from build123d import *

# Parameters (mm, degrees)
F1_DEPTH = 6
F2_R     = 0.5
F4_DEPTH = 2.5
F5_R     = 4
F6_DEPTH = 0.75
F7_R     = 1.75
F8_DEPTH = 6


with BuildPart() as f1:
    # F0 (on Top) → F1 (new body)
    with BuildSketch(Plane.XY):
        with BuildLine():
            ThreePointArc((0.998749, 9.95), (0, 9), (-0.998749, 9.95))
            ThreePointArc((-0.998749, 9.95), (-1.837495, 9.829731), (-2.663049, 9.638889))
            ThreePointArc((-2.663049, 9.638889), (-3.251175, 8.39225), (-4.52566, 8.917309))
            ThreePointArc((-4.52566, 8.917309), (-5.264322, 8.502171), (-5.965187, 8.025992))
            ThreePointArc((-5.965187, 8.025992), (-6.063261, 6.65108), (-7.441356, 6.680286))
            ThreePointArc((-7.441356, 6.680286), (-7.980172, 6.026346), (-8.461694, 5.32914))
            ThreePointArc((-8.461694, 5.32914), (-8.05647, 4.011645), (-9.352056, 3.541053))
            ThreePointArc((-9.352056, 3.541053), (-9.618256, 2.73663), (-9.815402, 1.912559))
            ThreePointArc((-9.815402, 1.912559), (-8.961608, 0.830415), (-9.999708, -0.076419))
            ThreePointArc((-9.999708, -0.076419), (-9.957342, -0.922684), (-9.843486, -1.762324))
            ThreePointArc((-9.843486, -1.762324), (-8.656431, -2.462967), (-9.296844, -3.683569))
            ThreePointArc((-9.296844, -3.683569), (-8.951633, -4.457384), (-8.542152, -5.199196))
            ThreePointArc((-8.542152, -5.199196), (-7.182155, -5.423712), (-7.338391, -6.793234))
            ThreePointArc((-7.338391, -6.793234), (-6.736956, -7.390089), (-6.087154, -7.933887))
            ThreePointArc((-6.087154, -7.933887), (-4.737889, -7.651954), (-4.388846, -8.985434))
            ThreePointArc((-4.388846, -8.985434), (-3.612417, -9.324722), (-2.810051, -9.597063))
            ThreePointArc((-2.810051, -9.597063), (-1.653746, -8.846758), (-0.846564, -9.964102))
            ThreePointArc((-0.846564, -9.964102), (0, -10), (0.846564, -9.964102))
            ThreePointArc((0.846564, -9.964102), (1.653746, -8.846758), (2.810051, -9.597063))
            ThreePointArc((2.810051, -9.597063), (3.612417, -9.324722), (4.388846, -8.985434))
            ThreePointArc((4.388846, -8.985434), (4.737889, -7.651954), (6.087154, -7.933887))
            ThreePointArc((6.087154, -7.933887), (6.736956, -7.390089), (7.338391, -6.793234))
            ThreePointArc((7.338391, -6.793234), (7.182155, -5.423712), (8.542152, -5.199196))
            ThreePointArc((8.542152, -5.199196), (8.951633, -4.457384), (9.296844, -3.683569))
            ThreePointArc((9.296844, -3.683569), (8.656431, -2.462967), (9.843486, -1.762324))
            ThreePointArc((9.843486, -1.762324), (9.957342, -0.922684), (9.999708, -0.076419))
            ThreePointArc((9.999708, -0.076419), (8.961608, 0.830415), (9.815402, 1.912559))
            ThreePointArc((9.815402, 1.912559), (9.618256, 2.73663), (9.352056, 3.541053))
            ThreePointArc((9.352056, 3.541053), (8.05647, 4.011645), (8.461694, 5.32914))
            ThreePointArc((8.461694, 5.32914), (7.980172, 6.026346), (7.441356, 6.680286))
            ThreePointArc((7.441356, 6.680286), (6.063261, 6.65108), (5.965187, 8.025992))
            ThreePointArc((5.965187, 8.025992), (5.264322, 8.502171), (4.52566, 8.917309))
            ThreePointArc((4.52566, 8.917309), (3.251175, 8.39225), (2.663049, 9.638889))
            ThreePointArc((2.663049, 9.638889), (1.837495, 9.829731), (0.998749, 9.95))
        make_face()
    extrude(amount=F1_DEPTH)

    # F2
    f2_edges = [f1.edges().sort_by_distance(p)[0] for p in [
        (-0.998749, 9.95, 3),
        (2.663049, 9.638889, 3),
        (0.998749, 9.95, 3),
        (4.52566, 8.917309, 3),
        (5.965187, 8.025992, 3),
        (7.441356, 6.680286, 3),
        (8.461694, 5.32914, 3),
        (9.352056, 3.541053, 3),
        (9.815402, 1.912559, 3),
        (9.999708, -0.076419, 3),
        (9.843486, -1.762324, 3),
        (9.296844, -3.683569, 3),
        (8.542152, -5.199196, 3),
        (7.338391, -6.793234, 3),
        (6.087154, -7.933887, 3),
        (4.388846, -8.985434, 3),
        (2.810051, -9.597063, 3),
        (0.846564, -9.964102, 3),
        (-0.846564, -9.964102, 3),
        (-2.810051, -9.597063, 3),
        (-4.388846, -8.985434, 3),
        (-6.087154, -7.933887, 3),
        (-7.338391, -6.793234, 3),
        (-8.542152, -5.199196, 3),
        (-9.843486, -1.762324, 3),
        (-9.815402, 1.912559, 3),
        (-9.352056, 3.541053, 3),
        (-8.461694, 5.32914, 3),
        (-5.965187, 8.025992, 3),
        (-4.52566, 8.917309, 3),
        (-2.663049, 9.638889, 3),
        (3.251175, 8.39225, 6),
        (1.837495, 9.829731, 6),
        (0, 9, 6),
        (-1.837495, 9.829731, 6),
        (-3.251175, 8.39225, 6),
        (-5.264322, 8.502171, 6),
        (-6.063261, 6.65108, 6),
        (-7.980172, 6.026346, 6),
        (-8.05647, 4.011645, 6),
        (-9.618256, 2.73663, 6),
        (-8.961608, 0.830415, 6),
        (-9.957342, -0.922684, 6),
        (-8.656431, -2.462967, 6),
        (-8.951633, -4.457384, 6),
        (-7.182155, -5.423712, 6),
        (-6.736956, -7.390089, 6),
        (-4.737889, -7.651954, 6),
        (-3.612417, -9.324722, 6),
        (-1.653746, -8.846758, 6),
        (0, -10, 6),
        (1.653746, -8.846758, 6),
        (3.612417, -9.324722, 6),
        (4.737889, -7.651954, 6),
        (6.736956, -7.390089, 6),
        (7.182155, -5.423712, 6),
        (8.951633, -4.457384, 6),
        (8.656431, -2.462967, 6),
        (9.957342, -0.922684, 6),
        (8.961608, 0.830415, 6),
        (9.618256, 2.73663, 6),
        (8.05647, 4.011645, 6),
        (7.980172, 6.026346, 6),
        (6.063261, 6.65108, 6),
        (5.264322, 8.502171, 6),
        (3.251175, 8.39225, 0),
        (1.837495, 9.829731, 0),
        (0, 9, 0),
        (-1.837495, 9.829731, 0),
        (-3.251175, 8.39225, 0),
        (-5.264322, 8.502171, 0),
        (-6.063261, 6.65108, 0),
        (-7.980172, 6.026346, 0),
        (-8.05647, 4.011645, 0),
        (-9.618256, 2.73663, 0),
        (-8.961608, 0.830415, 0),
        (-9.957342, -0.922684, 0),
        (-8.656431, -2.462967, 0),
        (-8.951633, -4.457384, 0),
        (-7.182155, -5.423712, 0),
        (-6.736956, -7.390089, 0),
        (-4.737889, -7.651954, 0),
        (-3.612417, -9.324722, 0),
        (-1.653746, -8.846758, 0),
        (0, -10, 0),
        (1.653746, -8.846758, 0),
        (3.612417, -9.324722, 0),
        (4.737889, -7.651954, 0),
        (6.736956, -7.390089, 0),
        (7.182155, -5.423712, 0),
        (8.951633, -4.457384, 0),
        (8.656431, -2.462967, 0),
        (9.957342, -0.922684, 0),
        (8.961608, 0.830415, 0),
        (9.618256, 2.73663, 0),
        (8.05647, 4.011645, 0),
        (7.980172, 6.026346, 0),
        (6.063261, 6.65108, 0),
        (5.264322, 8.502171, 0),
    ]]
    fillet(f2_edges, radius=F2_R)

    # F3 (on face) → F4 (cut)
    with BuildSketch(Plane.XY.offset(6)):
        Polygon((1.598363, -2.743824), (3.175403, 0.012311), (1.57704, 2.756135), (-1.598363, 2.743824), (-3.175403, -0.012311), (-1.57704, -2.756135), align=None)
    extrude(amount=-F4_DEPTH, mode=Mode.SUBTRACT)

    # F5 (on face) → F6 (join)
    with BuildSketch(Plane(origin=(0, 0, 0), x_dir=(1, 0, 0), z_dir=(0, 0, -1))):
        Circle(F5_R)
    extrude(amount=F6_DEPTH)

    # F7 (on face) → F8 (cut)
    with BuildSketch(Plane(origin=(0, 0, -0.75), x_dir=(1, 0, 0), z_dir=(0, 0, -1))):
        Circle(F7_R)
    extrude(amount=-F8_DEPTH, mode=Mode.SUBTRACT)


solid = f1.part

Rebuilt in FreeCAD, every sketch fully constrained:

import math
import FreeCAD as App
import Part
import Sketcher
Q = App.Units.Quantity


def edges_at(feature, points):
    """Names of the edges that pass closest to the given points."""
    edges = feature.Shape.Edges
    near = lambda p: min(range(len(edges)), key=lambda i: edges[i].distToShape(Part.Vertex(*p))[0])
    return sorted({f"Edge{near(p) + 1}" for p in points})

doc = App.newDocument("Part")
body = doc.addObject("PartDesign::Body", "Body")

# Sketch on XY plane
sketch1 = doc.addObject("Sketcher::SketchObject", "Sketch")
body.addObject(sketch1)
sketch1.AttachmentSupport = (doc.XY_Plane, [""])
sketch1.MapMode = "FlatFace"
sketch1.addGeometry([
    Part.ArcOfCircle(Part.Circle(App.Vector(0, 10, 0), App.Vector(0, 0, 1), 1), math.radians(-177.134028), math.radians(-2.865972)),  # 0
    Part.ArcOfCircle(Part.Circle(App.Vector(0.000012, -0.000082, 0), App.Vector(0, 0, 1), 10.000083), math.radians(95.731987), math.radians(105.444444)),  # 1
    Part.ArcOfCircle(Part.Circle(App.Vector(-3.612416, 9.324722, 0), App.Vector(0, 0, 1), 1), math.radians(-155.957566), math.radians(18.310542)),  # 2
    Part.ArcOfCircle(Part.Circle(App.Vector(0.000021, -0.000037, 0), App.Vector(0, 0, 1), 10.000042), math.radians(116.908447), math.radians(126.620942)),  # 3
    Part.ArcOfCircle(Part.Circle(App.Vector(-6.736956, 7.390089, 0), App.Vector(0, 0, 1), 1), math.radians(-134.781084), math.radians(39.486972)),  # 4
    Part.ArcOfCircle(Part.Circle(App.Vector(0.00009, -0.000067, 0), App.Vector(0, 0, 1), 10.000112), math.radians(138.084964), math.radians(147.797394)),  # 5
    Part.ArcOfCircle(Part.Circle(App.Vector(-8.951633, 4.457383, 0), App.Vector(0, 0, 1), 1), math.radians(-113.604614), math.radians(60.663413)),  # 6
    Part.ArcOfCircle(Part.Circle(App.Vector(0.000146, -0.000039, 0), App.Vector(0, 0, 1), 10.00015), math.radians(159.26147), math.radians(168.973857)),  # 7
    Part.ArcOfCircle(Part.Circle(App.Vector(-9.957342, 0.922683, 0), App.Vector(0, 0, 1), 1), math.radians(-92.428092), math.radians(81.839854)),  # 8
    Part.ArcOfCircle(Part.Circle(App.Vector(-0.000059, -0.000006, 0), App.Vector(0, 0, 1), 9.999941), math.radians(-179.56218), math.radians(-169.849592)),  # 9
    Part.ArcOfCircle(Part.Circle(App.Vector(-9.618257, -2.73663, 0), App.Vector(0, 0, 1), 1), math.radians(-71.251619), math.radians(103.016362)),  # 10
    Part.ArcOfCircle(Part.Circle(App.Vector(-0.000137, -0.000072, 0), App.Vector(0, 0, 1), 9.999846), math.radians(-158.385773), math.radians(-148.673085)),  # 11
    Part.ArcOfCircle(Part.Circle(App.Vector(-7.980172, -6.026346, 0), App.Vector(0, 0, 1), 1), math.radians(-50.075233), math.radians(124.192852)),  # 12
    Part.ArcOfCircle(Part.Circle(App.Vector(0.00016, 0.000177, 0), App.Vector(0, 0, 1), 10.000238), math.radians(-137.209087), math.radians(-127.496783)),  # 13
    Part.ArcOfCircle(Part.Circle(App.Vector(-5.264321, -8.502171, 0), App.Vector(0, 0, 1), 1), math.radians(-28.89872), math.radians(145.369347)),  # 14
    Part.ArcOfCircle(Part.Circle(App.Vector(0.000014, 0.000027, 0), App.Vector(0, 0, 1), 10.00003), math.radians(-116.032742), math.radians(-106.320235)),  # 15
    Part.ArcOfCircle(Part.Circle(App.Vector(-1.837495, -9.829731, 0), App.Vector(0, 0, 1), 1), math.radians(-7.722248), math.radians(166.545796)),  # 16
    Part.ArcOfCircle(Part.Circle(App.Vector(0, -0.00001, 0), App.Vector(0, 0, 1), 9.99999), math.radians(-94.856272), math.radians(-85.143728)),  # 17
    Part.ArcOfCircle(Part.Circle(App.Vector(1.837495, -9.829731, 0), App.Vector(0, 0, 1), 1), math.radians(13.454204), math.radians(187.722248)),  # 18
    Part.ArcOfCircle(Part.Circle(App.Vector(-0.000014, 0.000027, 0), App.Vector(0, 0, 1), 10.00003), math.radians(-73.679765), math.radians(-63.967258)),  # 19
    Part.ArcOfCircle(Part.Circle(App.Vector(5.264321, -8.502171, 0), App.Vector(0, 0, 1), 1), math.radians(34.630653), math.radians(208.89872)),  # 20
    Part.ArcOfCircle(Part.Circle(App.Vector(-0.00016, 0.000177, 0), App.Vector(0, 0, 1), 10.000238), math.radians(-52.503217), math.radians(-42.790913)),  # 21
    Part.ArcOfCircle(Part.Circle(App.Vector(7.980172, -6.026346, 0), App.Vector(0, 0, 1), 1), math.radians(55.807148), math.radians(230.075233)),  # 22
    Part.ArcOfCircle(Part.Circle(App.Vector(0.000137, -0.000072, 0), App.Vector(0, 0, 1), 9.999846), math.radians(-31.326915), math.radians(-21.614227)),  # 23
    Part.ArcOfCircle(Part.Circle(App.Vector(9.618257, -2.73663, 0), App.Vector(0, 0, 1), 1), math.radians(76.983638), math.radians(251.251619)),  # 24
    Part.ArcOfCircle(Part.Circle(App.Vector(0.000059, -0.000006, 0), App.Vector(0, 0, 1), 9.999941), math.radians(-10.150408), math.radians(-0.43782)),  # 25
    Part.ArcOfCircle(Part.Circle(App.Vector(9.957342, 0.922683, 0), App.Vector(0, 0, 1), 1), math.radians(98.160146), math.radians(272.428092)),  # 26
    Part.ArcOfCircle(Part.Circle(App.Vector(-0.000146, -0.000039, 0), App.Vector(0, 0, 1), 10.00015), math.radians(11.026143), math.radians(20.73853)),  # 27
    Part.ArcOfCircle(Part.Circle(App.Vector(8.951633, 4.457383, 0), App.Vector(0, 0, 1), 1), math.radians(119.336587), math.radians(293.604614)),  # 28
    Part.ArcOfCircle(Part.Circle(App.Vector(-0.00009, -0.000067, 0), App.Vector(0, 0, 1), 10.000112), math.radians(32.202606), math.radians(41.915036)),  # 29
    Part.ArcOfCircle(Part.Circle(App.Vector(6.736956, 7.390089, 0), App.Vector(0, 0, 1), 1), math.radians(140.513028), math.radians(314.781084)),  # 30
    Part.ArcOfCircle(Part.Circle(App.Vector(-0.000021, -0.000037, 0), App.Vector(0, 0, 1), 10.000042), math.radians(53.379058), math.radians(63.091553)),  # 31
    Part.ArcOfCircle(Part.Circle(App.Vector(3.612416, 9.324722, 0), App.Vector(0, 0, 1), 1), math.radians(161.689458), math.radians(335.957566)),  # 32
    Part.ArcOfCircle(Part.Circle(App.Vector(-0.000012, -0.000082, 0), App.Vector(0, 0, 1), 10.000083), math.radians(74.555556), math.radians(84.268013)),  # 33
], False)
sketch1.addConstraint([
    Sketcher.Constraint("Coincident", 0, 1, 1, 1),
    Sketcher.Constraint("Coincident", 1, 2, 2, 2),
    Sketcher.Constraint("Coincident", 2, 1, 3, 1),
    Sketcher.Constraint("Coincident", 3, 2, 4, 2),
    Sketcher.Constraint("Coincident", 4, 1, 5, 1),
    Sketcher.Constraint("Coincident", 5, 2, 6, 2),
    Sketcher.Constraint("Coincident", 6, 1, 7, 1),
    Sketcher.Constraint("Coincident", 7, 2, 8, 2),
    Sketcher.Constraint("Coincident", 8, 1, 9, 1),
    Sketcher.Constraint("Coincident", 9, 2, 10, 2),
    Sketcher.Constraint("Coincident", 10, 1, 11, 1),
    Sketcher.Constraint("Coincident", 11, 2, 12, 2),
    Sketcher.Constraint("Coincident", 12, 1, 13, 1),
    Sketcher.Constraint("Coincident", 13, 2, 14, 2),
    Sketcher.Constraint("Coincident", 14, 1, 15, 1),
    Sketcher.Constraint("Coincident", 15, 2, 16, 2),
    Sketcher.Constraint("Coincident", 16, 1, 17, 1),
    Sketcher.Constraint("Coincident", 17, 2, 18, 2),
    Sketcher.Constraint("Coincident", 18, 1, 19, 1),
    Sketcher.Constraint("Coincident", 19, 2, 20, 2),
    Sketcher.Constraint("Coincident", 20, 1, 21, 1),
    Sketcher.Constraint("Coincident", 21, 2, 22, 2),
    Sketcher.Constraint("Coincident", 22, 1, 23, 1),
    Sketcher.Constraint("Coincident", 23, 2, 24, 2),
    Sketcher.Constraint("Coincident", 24, 1, 25, 1),
    Sketcher.Constraint("Coincident", 25, 2, 26, 2),
    Sketcher.Constraint("Coincident", 26, 1, 27, 1),
    Sketcher.Constraint("Coincident", 27, 2, 28, 2),
    Sketcher.Constraint("Coincident", 28, 1, 29, 1),
    Sketcher.Constraint("Coincident", 29, 2, 30, 2),
    Sketcher.Constraint("Coincident", 30, 1, 31, 1),
    Sketcher.Constraint("Coincident", 31, 2, 32, 2),
    Sketcher.Constraint("Coincident", 32, 1, 33, 1),
    Sketcher.Constraint("Coincident", 33, 2, 0, 2),
    Sketcher.Constraint("Equal", 0, 2),
    Sketcher.Constraint("Equal", 2, 4),
    Sketcher.Constraint("Equal", 4, 6),
    Sketcher.Constraint("Equal", 6, 8),
    Sketcher.Constraint("Equal", 8, 10),
    Sketcher.Constraint("Equal", 10, 12),
    Sketcher.Constraint("Equal", 12, 14),
    Sketcher.Constraint("Equal", 14, 16),
    Sketcher.Constraint("Equal", 16, 18),
    Sketcher.Constraint("Equal", 15, 19),
    Sketcher.Constraint("Equal", 18, 20),
    Sketcher.Constraint("Equal", 13, 21),
    Sketcher.Constraint("Equal", 20, 22),
    Sketcher.Constraint("Equal", 11, 23),
    Sketcher.Constraint("Equal", 22, 24),
    Sketcher.Constraint("Equal", 9, 25),
    Sketcher.Constraint("Equal", 24, 26),
    Sketcher.Constraint("Equal", 7, 27),
    Sketcher.Constraint("Equal", 26, 28),
    Sketcher.Constraint("Equal", 5, 29),
    Sketcher.Constraint("Equal", 28, 30),
    Sketcher.Constraint("Equal", 3, 31),
    Sketcher.Constraint("Equal", 30, 32),
    Sketcher.Constraint("Equal", 1, 33),
    Sketcher.Constraint("Symmetric", 16, 3, 18, 3, -2),
    Sketcher.Constraint("Symmetric", 15, 3, 19, 3, -2),
    Sketcher.Constraint("Symmetric", 14, 3, 20, 3, -2),
    Sketcher.Constraint("Symmetric", 13, 3, 21, 3, -2),
    Sketcher.Constraint("Symmetric", 12, 3, 22, 3, -2),
    Sketcher.Constraint("Symmetric", 11, 3, 23, 3, -2),
    Sketcher.Constraint("Symmetric", 10, 3, 24, 3, -2),
    Sketcher.Constraint("Symmetric", 9, 3, 25, 3, -2),
    Sketcher.Constraint("Symmetric", 8, 3, 26, 3, -2),
    Sketcher.Constraint("Symmetric", 7, 3, 27, 3, -2),
    Sketcher.Constraint("Symmetric", 6, 3, 28, 3, -2),
    Sketcher.Constraint("Symmetric", 5, 3, 29, 3, -2),
    Sketcher.Constraint("Symmetric", 4, 3, 30, 3, -2),
    Sketcher.Constraint("Symmetric", 3, 3, 31, 3, -2),
    Sketcher.Constraint("Symmetric", 2, 3, 32, 3, -2),
    Sketcher.Constraint("Symmetric", 1, 3, 33, 3, -2),
    Sketcher.Constraint("PointOnObject", 0, 3, -2),
    Sketcher.Constraint("PointOnObject", 17, 3, -2),
    Sketcher.Constraint("Horizontal", 3, 3, 7, 3),
    Sketcher.Constraint("Radius", 0, Q("1 mm")),
    Sketcher.Constraint("DistanceY", -1, 1, 0, 3, Q("10 mm")),
    Sketcher.Constraint("DistanceY", -1, 1, 0, 1, Q("9.95 mm")),
    Sketcher.Constraint("Radius", 5, Q("10.000112 mm")),
    Sketcher.Constraint("Radius", 7, Q("10.00015 mm")),
    Sketcher.Constraint("Radius", 9, Q("9.999941 mm")),
    Sketcher.Constraint("Radius", 13, Q("10.000238 mm")),
    Sketcher.Constraint("Radius", 15, Q("10.00003 mm")),
    Sketcher.Constraint("Radius", 17, Q("9.99999 mm")),
    Sketcher.Constraint("Radius", 1, Q("10.000083 mm")),
    Sketcher.Constraint("Radius", 3, Q("10.000042 mm")),
    Sketcher.Constraint("Radius", 11, Q("9.999846 mm")),
    Sketcher.Constraint("DistanceY", 17, 2, -1, 1, Q("9.964102 mm")),
    Sketcher.Constraint("DistanceY", -1, 1, 2, 3, Q("9.324722 mm")),
    Sketcher.Constraint("DistanceY", -1, 1, 4, 3, Q("7.390089 mm")),
    Sketcher.Constraint("DistanceY", 10, 3, -1, 1, Q("2.73663 mm")),
    Sketcher.Constraint("DistanceX", 12, 3, -1, 1, Q("7.980172 mm")),
    Sketcher.Constraint("DistanceX", -1, 1, 13, 3, Q("0.00016 mm")),
    Sketcher.Constraint("DistanceX", 14, 3, -1, 1, Q("5.264321 mm")),
    Sketcher.Constraint("DistanceY", 14, 3, -1, 1, Q("8.502171 mm")),
    Sketcher.Constraint("DistanceY", 16, 3, -1, 1, Q("9.829731 mm")),
    Sketcher.Constraint("DistanceX", 1, 2, -1, 1, Q("2.663049 mm")),
    Sketcher.Constraint("DistanceY", -1, 1, 1, 2, Q("9.638889 mm")),
    Sketcher.Constraint("DistanceX", 2, 1, -1, 1, Q("4.52566 mm")),
    Sketcher.Constraint("DistanceY", -1, 1, 3, 2, Q("8.025992 mm")),
    Sketcher.Constraint("DistanceY", -1, 1, 5, 2, Q("5.32914 mm")),
    Sketcher.Constraint("DistanceY", -1, 1, 7, 2, Q("1.912559 mm")),
    Sketcher.Constraint("DistanceX", 8, 1, -1, 1, Q("9.999708 mm")),
    Sketcher.Constraint("DistanceY", 8, 1, -1, 1, Q("0.076419 mm")),
    Sketcher.Constraint("DistanceY", 10, 1, -1, 1, Q("3.683569 mm")),
    Sketcher.Constraint("DistanceX", 12, 1, -1, 1, Q("7.338391 mm")),
    Sketcher.Constraint("DistanceX", 15, 2, -1, 1, Q("2.810051 mm")),
    Sketcher.Constraint("DistanceX", -1, 1, 22, 1, Q("8.542152 mm")),
    Sketcher.Constraint("DistanceX", 4, 3, -1, 1, Q("6.736956 mm")),
    Sketcher.Constraint("DistanceX", 6, 3, -1, 1, Q("8.951633 mm")),
    Sketcher.Constraint("DistanceY", -1, 1, 6, 3, Q("4.457383 mm")),
    Sketcher.Constraint("DistanceX", -1, 1, 7, 3, Q("0.000146 mm")),
    Sketcher.Constraint("DistanceX", 10, 3, -1, 1, Q("9.618257 mm")),
    Sketcher.Constraint("DistanceX", 11, 3, -1, 1, Q("0.000137 mm")),
    Sketcher.Constraint("DistanceX", 16, 3, -1, 1, Q("1.837495 mm")),
    Sketcher.Constraint("DistanceX", 4, 1, -1, 1, Q("7.441356 mm")),
    Sketcher.Constraint("DistanceX", 9, 2, -1, 1, Q("9.843486 mm")),
    Sketcher.Constraint("DistanceX", 14, 1, -1, 1, Q("4.388846 mm")),
])
pad1 = doc.addObject("PartDesign::Pad", "Pad")
body.addObject(pad1)
pad1.Profile = sketch1
pad1.Length = 6
doc.recompute()

fillet = doc.addObject("PartDesign::Fillet", "Fillet")
body.addObject(fillet)
fillet.Base = (pad1, edges_at(pad1, [
    (-0.999, 9.95, 3),
    (2.663, 9.639, 3),
    (0.999, 9.95, 3),
    (4.526, 8.917, 3),
    (5.965, 8.026, 3),
    (7.441, 6.68, 3),
    (8.462, 5.329, 3),
    (9.352, 3.541, 3),
    (9.815, 1.913, 3),
    (10, -0.076, 3),
    (9.843, -1.762, 3),
    (9.297, -3.684, 3),
    (8.542, -5.199, 3),
    (7.338, -6.793, 3),
    (6.087, -7.934, 3),
    (4.389, -8.985, 3),
    (2.81, -9.597, 3),
    (0.847, -9.964, 3),
    (-0.847, -9.964, 3),
    (-2.81, -9.597, 3),
    (-4.389, -8.985, 3),
    (-6.087, -7.934, 3),
    (-7.338, -6.793, 3),
    (-8.542, -5.199, 3),
    (-9.843, -1.762, 3),
    (-9.815, 1.913, 3),
    (-9.352, 3.541, 3),
    (-8.462, 5.329, 3),
    (-5.965, 8.026, 3),
    (-4.526, 8.917, 3),
    (-2.663, 9.639, 3),
    (3.251, 8.392, 6),
    (1.837, 9.83, 6),
    (0, 9, 6),
    (-1.837, 9.83, 6),
    (-3.251, 8.392, 6),
    (-5.264, 8.502, 6),
    (-6.063, 6.651, 6),
    (-7.98, 6.026, 6),
    (-8.056, 4.012, 6),
    (-9.618, 2.737, 6),
    (-8.962, 0.83, 6),
    (-9.957, -0.923, 6),
    (-8.656, -2.463, 6),
    (-8.952, -4.457, 6),
    (-7.182, -5.424, 6),
    (-6.737, -7.39, 6),
    (-4.738, -7.652, 6),
    (-3.612, -9.325, 6),
    (-1.654, -8.847, 6),
    (0, -10, 6),
    (1.654, -8.847, 6),
    (3.612, -9.325, 6),
    (4.738, -7.652, 6),
    (6.737, -7.39, 6),
    (7.182, -5.424, 6),
    (8.952, -4.457, 6),
    (8.656, -2.463, 6),
    (9.957, -0.923, 6),
    (8.962, 0.83, 6),
    (9.618, 2.737, 6),
    (8.056, 4.012, 6),
    (7.98, 6.026, 6),
    (6.063, 6.651, 6),
    (5.264, 8.502, 6),
    (3.251, 8.392, 0),
    (1.837, 9.83, 0),
    (0, 9, 0),
    (-1.837, 9.83, 0),
    (-3.251, 8.392, 0),
    (-5.264, 8.502, 0),
    (-6.063, 6.651, 0),
    (-7.98, 6.026, 0),
    (-8.056, 4.012, 0),
    (-9.618, 2.737, 0),
    (-8.962, 0.83, 0),
    (-9.957, -0.923, 0),
    (-8.656, -2.463, 0),
    (-8.952, -4.457, 0),
    (-7.182, -5.424, 0),
    (-6.737, -7.39, 0),
    (-4.738, -7.652, 0),
    (-3.612, -9.325, 0),
    (-1.654, -8.847, 0),
    (0, -10, 0),
    (1.654, -8.847, 0),
    (3.612, -9.325, 0),
    (4.738, -7.652, 0),
    (6.737, -7.39, 0),
    (7.182, -5.424, 0),
    (8.952, -4.457, 0),
    (8.656, -2.463, 0),
    (9.957, -0.923, 0),
    (8.962, 0.83, 0),
    (9.618, 2.737, 0),
    (8.056, 4.012, 0),
    (7.98, 6.026, 0),
    (6.063, 6.651, 0),
    (5.264, 8.502, 0),
]))
fillet.Radius = 0.5

# Sketch on XY plane
sketch2 = doc.addObject("Sketcher::SketchObject", "Sketch001")
body.addObject(sketch2)
sketch2.AttachmentSupport = (doc.XY_Plane, [""])
sketch2.MapMode = "FlatFace"
sketch2.AttachmentOffset = App.Placement(App.Vector(0, 0, 6), App.Rotation())
sketch2.addGeometry([
    Part.LineSegment(App.Vector(1.6, -2.7, 0), App.Vector(3.2, 0, 0)),  # 0
    Part.LineSegment(App.Vector(3.2, 0, 0), App.Vector(1.6, 2.8, 0)),  # 1
    Part.LineSegment(App.Vector(1.6, 2.8, 0), App.Vector(-1.6, 2.7, 0)),  # 2
    Part.LineSegment(App.Vector(-1.6, 2.7, 0), App.Vector(-3.2, 0, 0)),  # 3
    Part.LineSegment(App.Vector(-3.2, 0, 0), App.Vector(-1.6, -2.8, 0)),  # 4
    Part.LineSegment(App.Vector(-1.6, -2.8, 0), App.Vector(1.6, -2.7, 0)),  # 5
], False)
sketch2.addConstraint([
    Sketcher.Constraint("Coincident", 0, 2, 1, 1),
    Sketcher.Constraint("Coincident", 1, 2, 2, 1),
    Sketcher.Constraint("Coincident", 2, 2, 3, 1),
    Sketcher.Constraint("Coincident", 3, 2, 4, 1),
    Sketcher.Constraint("Coincident", 4, 2, 5, 1),
    Sketcher.Constraint("Coincident", 5, 2, 0, 1),
    Sketcher.Constraint("Symmetric", 0, 2, 3, 2, -1, 1),
    Sketcher.Constraint("Symmetric", 1, 2, 4, 2, -1, 1),
    Sketcher.Constraint("Symmetric", 2, 2, 5, 2, -1, 1),
    Sketcher.Constraint("Equal", 0, 1),
    Sketcher.Constraint("Equal", 1, 2),
    Sketcher.Constraint("DistanceY", -1, 1, 0, 2, Q("0.012311 mm")),
    Sketcher.Constraint("DistanceX", -1, 1, 1, 2, Q("1.57704 mm")),
    Sketcher.Constraint("DistanceY", 2, 2, 1, 2, Q("0.012311 mm")),
    Sketcher.Constraint("DistanceX", 3, 2, 2, 2, Q("1.57704 mm")),
])
pocket1 = doc.addObject("PartDesign::Pocket", "Pocket")
body.addObject(pocket1)
pocket1.Profile = sketch2
pocket1.Length = 2.5

# Sketch on XY plane
sketch3 = doc.addObject("Sketcher::SketchObject", "Sketch002")
body.addObject(sketch3)
sketch3.AttachmentSupport = (doc.XY_Plane, [""])
sketch3.MapMode = "FlatFace"
sketch3.addGeometry(Part.Circle(App.Vector(0, 0, 0), App.Vector(0, 0, 1), 4), False)
sketch3.addConstraint([
    Sketcher.Constraint("Coincident", 0, 3, -1, 1),
    Sketcher.Constraint("Diameter", 0, Q("8 mm")),
])
pad2 = doc.addObject("PartDesign::Pad", "Pad001")
body.addObject(pad2)
pad2.Profile = sketch3
pad2.Length = 0.75
pad2.Reversed = True

# Sketch on XY plane
sketch4 = doc.addObject("Sketcher::SketchObject", "Sketch003")
body.addObject(sketch4)
sketch4.AttachmentSupport = (doc.XY_Plane, [""])
sketch4.MapMode = "FlatFace"
sketch4.AttachmentOffset = App.Placement(App.Vector(0, 0, -0.75), App.Rotation())
sketch4.addGeometry(Part.Circle(App.Vector(0, 0, 0), App.Vector(0, 0, 1), 1.8), False)
sketch4.addConstraint([
    Sketcher.Constraint("Coincident", 0, 3, -1, 1),
    Sketcher.Constraint("Diameter", 0, Q("3.5 mm")),
])
pocket2 = doc.addObject("PartDesign::Pocket", "Pocket001")
body.addObject(pocket2)
pocket2.Profile = sketch4
pocket2.Length = 6
pocket2.Reversed = True

doc.recompute()
